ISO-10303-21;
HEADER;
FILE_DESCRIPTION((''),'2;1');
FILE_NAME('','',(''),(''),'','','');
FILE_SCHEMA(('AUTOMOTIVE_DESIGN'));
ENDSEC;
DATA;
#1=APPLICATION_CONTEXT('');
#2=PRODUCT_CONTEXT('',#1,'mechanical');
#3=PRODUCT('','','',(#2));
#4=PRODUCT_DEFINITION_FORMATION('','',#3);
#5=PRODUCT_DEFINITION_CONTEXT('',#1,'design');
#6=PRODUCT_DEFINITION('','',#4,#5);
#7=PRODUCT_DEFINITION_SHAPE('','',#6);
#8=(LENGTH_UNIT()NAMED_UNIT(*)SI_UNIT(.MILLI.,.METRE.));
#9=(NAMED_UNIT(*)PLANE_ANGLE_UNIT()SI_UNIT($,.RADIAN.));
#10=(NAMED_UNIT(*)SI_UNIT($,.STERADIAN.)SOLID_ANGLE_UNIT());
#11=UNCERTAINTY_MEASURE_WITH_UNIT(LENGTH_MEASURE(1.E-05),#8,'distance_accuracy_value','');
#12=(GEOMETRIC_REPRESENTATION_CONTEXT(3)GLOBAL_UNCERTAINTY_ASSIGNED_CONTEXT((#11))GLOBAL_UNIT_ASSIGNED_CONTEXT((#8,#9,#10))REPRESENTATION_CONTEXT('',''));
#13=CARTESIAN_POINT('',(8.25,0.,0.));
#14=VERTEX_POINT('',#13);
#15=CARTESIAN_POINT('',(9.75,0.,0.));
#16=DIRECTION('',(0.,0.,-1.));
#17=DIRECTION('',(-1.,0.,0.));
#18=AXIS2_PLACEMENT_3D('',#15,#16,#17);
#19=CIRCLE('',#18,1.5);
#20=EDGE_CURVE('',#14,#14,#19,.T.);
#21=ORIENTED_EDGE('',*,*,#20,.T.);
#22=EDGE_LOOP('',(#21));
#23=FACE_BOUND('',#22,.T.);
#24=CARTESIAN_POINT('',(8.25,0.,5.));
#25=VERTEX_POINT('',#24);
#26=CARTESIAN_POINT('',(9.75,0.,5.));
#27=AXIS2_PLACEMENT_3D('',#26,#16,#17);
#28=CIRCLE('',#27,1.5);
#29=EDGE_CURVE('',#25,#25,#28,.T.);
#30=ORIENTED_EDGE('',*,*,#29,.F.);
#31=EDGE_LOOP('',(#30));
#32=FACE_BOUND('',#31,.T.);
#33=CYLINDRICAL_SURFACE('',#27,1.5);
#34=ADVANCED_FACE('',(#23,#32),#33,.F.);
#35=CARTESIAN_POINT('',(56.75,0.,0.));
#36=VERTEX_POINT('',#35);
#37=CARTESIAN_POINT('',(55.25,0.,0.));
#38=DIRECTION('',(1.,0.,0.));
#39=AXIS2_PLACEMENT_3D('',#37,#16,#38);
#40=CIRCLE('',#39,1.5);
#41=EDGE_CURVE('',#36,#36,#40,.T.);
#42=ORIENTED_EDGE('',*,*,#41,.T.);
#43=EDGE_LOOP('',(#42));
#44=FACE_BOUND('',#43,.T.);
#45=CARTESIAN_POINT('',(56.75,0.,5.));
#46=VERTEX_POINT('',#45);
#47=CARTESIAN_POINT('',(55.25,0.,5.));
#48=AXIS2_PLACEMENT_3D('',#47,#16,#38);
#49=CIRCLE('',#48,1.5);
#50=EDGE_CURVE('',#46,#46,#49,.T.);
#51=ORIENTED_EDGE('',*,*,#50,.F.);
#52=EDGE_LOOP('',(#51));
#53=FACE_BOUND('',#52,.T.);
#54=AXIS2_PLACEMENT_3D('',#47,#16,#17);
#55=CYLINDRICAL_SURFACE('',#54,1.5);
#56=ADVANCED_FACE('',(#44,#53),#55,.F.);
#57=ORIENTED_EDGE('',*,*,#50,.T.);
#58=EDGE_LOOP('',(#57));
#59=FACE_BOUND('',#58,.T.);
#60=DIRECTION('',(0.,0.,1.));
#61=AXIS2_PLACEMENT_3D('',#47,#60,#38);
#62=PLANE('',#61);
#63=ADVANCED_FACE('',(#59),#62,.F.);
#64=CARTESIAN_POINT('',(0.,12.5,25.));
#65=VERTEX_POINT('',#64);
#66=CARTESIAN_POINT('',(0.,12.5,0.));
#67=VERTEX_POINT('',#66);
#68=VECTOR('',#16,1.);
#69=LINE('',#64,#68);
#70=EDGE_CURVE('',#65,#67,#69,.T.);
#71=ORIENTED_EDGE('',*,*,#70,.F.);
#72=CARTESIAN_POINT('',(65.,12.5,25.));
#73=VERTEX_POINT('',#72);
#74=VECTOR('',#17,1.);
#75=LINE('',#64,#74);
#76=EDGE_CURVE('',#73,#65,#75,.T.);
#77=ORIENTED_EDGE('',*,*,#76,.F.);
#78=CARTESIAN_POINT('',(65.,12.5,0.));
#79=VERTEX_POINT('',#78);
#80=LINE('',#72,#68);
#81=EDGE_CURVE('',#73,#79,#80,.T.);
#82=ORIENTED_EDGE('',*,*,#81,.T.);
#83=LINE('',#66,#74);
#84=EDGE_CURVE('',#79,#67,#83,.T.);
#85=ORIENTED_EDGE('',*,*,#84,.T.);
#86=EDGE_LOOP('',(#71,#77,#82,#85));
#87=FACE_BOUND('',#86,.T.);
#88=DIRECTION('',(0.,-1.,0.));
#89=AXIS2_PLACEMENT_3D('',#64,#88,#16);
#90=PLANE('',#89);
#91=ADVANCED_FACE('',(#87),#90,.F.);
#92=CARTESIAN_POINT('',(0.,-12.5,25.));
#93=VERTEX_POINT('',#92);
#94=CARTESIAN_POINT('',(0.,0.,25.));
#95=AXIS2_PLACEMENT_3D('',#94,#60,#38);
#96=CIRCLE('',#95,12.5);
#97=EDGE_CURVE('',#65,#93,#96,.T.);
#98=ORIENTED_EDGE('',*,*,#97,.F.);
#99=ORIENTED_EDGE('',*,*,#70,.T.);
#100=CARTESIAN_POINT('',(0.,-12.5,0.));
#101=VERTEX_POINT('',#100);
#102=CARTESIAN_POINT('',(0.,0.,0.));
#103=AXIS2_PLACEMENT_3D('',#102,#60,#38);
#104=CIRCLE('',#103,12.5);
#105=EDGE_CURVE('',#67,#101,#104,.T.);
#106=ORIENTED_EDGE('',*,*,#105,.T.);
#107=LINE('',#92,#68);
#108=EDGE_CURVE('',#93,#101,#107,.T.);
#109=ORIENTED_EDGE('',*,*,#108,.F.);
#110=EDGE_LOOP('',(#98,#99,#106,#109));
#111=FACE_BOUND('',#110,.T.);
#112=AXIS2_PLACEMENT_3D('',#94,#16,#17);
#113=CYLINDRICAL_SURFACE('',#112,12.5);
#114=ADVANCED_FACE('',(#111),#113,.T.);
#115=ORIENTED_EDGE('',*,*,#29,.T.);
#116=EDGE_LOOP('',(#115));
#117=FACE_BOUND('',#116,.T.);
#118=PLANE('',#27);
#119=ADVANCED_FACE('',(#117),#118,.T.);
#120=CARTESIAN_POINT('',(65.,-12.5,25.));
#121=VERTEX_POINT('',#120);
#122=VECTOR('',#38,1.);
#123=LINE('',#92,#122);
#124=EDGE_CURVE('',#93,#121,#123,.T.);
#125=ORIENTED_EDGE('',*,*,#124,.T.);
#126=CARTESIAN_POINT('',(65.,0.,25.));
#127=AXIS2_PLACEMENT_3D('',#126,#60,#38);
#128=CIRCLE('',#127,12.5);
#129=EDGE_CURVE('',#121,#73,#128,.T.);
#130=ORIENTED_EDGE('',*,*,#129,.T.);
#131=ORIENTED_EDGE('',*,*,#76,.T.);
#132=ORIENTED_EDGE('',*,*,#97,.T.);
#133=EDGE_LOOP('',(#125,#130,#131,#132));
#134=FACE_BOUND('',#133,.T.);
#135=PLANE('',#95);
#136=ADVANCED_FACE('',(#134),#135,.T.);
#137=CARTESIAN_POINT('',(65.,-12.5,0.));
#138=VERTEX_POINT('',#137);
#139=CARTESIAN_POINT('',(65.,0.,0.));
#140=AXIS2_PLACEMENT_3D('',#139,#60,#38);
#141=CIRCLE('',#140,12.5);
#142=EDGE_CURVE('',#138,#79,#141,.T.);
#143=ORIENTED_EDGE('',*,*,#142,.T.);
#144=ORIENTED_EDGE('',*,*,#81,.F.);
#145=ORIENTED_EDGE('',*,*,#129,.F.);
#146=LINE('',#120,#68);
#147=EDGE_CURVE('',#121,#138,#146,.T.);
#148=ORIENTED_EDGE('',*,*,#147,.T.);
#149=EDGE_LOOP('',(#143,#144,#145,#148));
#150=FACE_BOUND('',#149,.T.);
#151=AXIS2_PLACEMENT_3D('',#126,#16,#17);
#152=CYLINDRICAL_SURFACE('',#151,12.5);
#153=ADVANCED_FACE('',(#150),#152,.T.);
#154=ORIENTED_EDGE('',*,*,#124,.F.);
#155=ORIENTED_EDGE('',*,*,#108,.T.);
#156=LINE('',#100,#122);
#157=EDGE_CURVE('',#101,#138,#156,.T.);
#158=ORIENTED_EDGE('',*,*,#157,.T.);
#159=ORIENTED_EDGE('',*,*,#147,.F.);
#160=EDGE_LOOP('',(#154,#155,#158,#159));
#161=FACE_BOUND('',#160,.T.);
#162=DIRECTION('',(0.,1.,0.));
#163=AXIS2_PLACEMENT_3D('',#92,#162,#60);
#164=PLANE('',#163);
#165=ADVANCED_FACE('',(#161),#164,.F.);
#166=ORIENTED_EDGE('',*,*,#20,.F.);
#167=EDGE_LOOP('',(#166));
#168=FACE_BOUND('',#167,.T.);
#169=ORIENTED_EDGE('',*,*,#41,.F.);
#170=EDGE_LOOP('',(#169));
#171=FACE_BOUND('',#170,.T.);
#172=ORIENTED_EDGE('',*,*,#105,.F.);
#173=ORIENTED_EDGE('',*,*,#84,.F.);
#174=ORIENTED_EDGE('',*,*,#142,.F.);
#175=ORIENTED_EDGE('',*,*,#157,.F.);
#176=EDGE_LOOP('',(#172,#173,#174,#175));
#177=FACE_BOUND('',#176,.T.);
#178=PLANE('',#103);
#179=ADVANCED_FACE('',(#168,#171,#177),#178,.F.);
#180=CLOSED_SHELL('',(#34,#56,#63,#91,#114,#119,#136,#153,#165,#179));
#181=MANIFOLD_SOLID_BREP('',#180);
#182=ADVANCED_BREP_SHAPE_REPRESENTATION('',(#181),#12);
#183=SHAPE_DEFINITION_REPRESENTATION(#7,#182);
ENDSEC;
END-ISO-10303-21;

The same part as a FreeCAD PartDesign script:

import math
import FreeCAD as App
import Part
import Sketcher
from FreeCAD import Vector
Q = App.Units.Quantity

doc = App.newDocument("Part")
body = doc.addObject("PartDesign::Body", "Body")

# Sketch on XY plane
sketch1 = body.newObject("Sketcher::SketchObject", "Sketch")
sketch1.AttachmentSupport = (doc.getObject("XY_Plane"), [""])
sketch1.MapMode = "FlatFace"
sketch1.addGeometry([
    Part.LineSegment(Vector(65, 12, 0), Vector(0, 12, 0)),
    Part.ArcOfCircle(Part.Circle(Vector(0, 0, 0), Vector(0, 0, 1), 12), math.radians(90), math.radians(270)),
    Part.LineSegment(Vector(0, -12, 0), Vector(65, -12, 0)),
    Part.ArcOfCircle(Part.Circle(Vector(65, 0, 0), Vector(0, 0, 1), 12), math.radians(-90), math.radians(90)),
], False)
sketch1.addConstraint([
    Sketcher.Constraint("Tangent", 0, 2, 1, 1),
    Sketcher.Constraint("Tangent", 1, 2, 2, 1),
    Sketcher.Constraint("Tangent", 2, 2, 3, 1),
    Sketcher.Constraint("Tangent", 3, 2, 0, 1),
    Sketcher.Constraint("Horizontal", 0),
    Sketcher.Constraint("Horizontal", 2),
    Sketcher.Constraint("Coincident", 1, 3, -1, 1),
    Sketcher.Constraint("Radius", 1, Q("12.5 mm")),
    Sketcher.Constraint("DistanceX", 0, 2, 0, 1, Q("65 mm")),
])
pad1 = body.newObject("PartDesign::Pad", "Pad")
pad1.Profile = sketch1
pad1.Length = 25

# Sketch on XY plane
sketch2 = body.newObject("Sketcher::SketchObject", "Sketch001")
sketch2.AttachmentSupport = (doc.getObject("XY_Plane"), [""])
sketch2.MapMode = "FlatFace"
sketch2.addGeometry([
    Part.Circle(Vector(9.8, 0, 0), Vector(0, 0, 1), 1.5),
    Part.Circle(Vector(55.2, 0, 0), Vector(0, 0, 1), 1.5),
], False)
sketch2.addConstraint([
    Sketcher.Constraint("Equal", 0, 1),
    Sketcher.Constraint("PointOnObject", 0, 3, -1),
    Sketcher.Constraint("PointOnObject", 1, 3, -1),
    Sketcher.Constraint("Diameter", 0, Q("3 mm")),
    Sketcher.Constraint("DistanceX", 0, 3, 1, 3, Q("45.5 mm")),
    Sketcher.Constraint("DistanceX", -1, 1, 0, 3, Q("9.75 mm")),
])
pocket1 = body.newObject("PartDesign::Pocket", "Pocket")
pocket1.Profile = sketch2
pocket1.Length = 5
pocket1.Reversed = True

doc.recompute()
